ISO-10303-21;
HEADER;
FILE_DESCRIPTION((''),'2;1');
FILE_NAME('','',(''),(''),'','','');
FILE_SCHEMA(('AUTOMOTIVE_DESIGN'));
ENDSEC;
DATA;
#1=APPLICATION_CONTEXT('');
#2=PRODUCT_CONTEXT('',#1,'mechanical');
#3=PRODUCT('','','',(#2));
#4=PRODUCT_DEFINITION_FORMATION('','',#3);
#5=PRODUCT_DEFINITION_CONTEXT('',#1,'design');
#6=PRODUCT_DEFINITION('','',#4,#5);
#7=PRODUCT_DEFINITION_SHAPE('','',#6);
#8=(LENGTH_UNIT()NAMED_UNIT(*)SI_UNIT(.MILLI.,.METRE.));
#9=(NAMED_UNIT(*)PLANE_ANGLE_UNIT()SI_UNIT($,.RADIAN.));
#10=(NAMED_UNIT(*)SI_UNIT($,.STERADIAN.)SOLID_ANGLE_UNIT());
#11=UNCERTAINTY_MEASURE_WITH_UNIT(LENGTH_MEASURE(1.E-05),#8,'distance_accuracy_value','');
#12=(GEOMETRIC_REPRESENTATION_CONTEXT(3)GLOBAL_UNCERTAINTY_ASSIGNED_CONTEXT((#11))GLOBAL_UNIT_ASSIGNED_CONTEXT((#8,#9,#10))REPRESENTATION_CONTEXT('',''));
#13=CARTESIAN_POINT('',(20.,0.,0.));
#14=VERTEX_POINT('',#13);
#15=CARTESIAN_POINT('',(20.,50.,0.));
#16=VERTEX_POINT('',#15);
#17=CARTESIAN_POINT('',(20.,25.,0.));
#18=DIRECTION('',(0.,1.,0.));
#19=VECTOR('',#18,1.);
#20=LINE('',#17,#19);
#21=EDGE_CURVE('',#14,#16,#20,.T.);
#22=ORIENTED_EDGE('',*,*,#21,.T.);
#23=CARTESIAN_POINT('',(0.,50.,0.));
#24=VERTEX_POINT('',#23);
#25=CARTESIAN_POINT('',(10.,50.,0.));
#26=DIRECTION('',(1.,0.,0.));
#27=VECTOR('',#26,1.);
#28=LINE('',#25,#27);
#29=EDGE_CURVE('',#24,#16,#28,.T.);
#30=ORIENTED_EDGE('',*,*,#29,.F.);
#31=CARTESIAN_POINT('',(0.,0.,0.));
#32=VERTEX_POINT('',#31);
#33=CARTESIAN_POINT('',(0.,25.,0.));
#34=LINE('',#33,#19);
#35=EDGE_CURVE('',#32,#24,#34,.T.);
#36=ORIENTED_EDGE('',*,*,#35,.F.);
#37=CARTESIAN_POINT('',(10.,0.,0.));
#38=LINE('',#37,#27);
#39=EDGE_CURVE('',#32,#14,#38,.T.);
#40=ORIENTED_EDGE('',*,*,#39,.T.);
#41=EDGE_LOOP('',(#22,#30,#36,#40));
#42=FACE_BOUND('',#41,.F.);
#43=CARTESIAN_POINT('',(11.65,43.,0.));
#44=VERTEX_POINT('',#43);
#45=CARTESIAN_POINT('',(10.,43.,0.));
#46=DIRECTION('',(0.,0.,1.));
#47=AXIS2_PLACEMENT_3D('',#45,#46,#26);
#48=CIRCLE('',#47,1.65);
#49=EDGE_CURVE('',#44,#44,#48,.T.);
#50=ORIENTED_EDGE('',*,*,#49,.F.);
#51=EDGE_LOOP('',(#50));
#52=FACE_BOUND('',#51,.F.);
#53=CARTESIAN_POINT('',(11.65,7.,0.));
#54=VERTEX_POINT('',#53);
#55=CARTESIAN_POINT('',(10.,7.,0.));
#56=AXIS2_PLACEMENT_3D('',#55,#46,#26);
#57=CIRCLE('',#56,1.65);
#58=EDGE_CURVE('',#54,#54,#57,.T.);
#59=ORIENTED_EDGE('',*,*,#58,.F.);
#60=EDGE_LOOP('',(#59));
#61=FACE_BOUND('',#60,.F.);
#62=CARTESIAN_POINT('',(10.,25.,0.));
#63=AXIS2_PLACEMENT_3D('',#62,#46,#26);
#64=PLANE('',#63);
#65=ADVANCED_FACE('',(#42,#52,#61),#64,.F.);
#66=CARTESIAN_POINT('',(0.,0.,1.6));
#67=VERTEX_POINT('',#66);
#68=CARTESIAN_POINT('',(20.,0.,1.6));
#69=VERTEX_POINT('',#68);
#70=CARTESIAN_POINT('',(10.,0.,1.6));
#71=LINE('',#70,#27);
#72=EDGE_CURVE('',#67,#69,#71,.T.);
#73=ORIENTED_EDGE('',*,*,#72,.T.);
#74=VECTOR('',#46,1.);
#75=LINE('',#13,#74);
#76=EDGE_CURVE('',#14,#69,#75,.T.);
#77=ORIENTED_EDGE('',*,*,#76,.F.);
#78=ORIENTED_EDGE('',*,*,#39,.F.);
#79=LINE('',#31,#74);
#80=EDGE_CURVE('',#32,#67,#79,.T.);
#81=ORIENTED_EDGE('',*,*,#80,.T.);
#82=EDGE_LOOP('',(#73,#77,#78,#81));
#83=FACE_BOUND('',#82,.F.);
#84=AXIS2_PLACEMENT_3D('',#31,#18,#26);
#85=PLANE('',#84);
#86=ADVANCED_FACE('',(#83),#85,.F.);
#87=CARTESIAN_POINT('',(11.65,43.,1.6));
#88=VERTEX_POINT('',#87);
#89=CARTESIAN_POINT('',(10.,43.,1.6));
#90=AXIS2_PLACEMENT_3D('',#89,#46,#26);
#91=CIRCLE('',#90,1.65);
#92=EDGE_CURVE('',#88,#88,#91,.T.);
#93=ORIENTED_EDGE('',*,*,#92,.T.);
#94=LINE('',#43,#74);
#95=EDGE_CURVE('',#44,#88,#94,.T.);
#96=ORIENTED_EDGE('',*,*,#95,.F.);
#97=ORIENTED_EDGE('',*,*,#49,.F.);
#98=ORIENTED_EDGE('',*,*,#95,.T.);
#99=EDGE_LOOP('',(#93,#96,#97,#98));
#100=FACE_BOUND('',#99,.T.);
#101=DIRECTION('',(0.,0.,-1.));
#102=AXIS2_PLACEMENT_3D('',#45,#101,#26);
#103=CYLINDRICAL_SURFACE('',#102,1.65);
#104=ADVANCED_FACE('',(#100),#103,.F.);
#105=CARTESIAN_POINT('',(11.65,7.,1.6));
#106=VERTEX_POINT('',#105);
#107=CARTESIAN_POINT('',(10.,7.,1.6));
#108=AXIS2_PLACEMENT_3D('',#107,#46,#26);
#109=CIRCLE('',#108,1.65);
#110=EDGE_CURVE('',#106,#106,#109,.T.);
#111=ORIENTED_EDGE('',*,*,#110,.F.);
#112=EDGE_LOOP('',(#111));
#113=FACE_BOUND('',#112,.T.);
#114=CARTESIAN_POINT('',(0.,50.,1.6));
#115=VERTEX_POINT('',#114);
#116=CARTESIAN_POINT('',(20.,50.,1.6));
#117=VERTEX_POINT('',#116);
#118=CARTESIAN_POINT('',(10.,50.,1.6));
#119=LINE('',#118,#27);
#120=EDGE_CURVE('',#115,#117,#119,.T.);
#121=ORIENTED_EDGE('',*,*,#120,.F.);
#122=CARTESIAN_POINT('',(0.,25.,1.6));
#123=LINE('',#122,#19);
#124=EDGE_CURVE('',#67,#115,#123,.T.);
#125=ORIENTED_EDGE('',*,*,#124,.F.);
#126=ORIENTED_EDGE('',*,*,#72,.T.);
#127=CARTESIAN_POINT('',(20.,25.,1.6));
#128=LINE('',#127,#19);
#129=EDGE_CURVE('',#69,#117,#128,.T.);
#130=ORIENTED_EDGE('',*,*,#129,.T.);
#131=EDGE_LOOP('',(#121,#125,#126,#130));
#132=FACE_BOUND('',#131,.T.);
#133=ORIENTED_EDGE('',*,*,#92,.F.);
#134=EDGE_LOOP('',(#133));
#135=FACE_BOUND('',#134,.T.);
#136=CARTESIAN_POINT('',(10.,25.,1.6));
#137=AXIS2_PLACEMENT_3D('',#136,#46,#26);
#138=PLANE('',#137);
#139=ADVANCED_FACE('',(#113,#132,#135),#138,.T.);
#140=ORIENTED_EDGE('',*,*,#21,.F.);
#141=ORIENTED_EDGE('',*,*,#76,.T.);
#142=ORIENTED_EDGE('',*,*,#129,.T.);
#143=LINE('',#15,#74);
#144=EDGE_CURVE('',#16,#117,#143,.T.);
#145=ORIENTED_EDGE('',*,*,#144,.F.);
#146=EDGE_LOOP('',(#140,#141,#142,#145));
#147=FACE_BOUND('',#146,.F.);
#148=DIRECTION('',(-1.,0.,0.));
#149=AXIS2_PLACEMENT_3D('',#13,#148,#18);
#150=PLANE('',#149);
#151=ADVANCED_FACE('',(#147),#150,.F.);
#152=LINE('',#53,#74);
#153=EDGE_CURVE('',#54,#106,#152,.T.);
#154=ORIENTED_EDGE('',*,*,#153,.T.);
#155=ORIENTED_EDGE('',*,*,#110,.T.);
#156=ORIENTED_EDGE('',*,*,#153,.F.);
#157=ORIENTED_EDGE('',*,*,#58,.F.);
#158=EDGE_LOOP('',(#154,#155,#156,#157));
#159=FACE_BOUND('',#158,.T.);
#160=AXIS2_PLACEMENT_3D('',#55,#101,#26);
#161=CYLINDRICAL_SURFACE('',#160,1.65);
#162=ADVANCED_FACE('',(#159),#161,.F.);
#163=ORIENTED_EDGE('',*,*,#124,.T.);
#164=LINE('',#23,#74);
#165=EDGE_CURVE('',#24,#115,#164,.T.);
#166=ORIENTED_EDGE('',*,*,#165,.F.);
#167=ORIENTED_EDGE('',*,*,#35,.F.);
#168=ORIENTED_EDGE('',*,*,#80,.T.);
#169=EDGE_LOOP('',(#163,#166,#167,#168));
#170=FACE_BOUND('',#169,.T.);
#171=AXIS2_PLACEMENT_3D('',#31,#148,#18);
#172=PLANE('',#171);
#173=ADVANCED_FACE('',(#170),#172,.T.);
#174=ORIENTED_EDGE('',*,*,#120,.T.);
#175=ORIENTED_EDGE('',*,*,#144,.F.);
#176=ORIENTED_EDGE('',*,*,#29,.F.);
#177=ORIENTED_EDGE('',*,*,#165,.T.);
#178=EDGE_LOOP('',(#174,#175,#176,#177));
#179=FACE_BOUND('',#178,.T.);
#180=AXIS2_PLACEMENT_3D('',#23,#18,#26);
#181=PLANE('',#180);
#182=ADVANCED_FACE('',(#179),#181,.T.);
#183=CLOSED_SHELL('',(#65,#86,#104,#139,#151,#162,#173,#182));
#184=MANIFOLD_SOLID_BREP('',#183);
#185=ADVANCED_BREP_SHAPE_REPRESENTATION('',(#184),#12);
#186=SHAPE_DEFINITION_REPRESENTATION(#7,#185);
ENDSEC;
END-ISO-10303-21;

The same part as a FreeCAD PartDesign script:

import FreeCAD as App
import Part
import Sketcher
Q = App.Units.Quantity


def add_polygon(sketch, points):
    """Adds a closed chain of lines whose ends are joined by coincident constraints."""
    first, n = sketch.GeometryCount, len(points)
    for a, b in zip(points, points[1:] + points[:1]):
        sketch.addGeometry(Part.LineSegment(App.Vector(*a, 0), App.Vector(*b, 0)), False)
    for i in range(n):
        sketch.addConstraint(Sketcher.Constraint("Coincident", first + i, 2, first + (i + 1) % n, 1))

doc = App.newDocument("Part")
body = doc.addObject("PartDesign::Body", "Body")

sketch1 = body.newObject("Sketcher::SketchObject", "Sketch")
sketch1.AttachmentSupport = (doc.getObject("XY_Plane"), [""])
sketch1.MapMode = "FlatFace"
add_polygon(sketch1, [(0, 50), (0, 0), (20, 0), (20, 50)])
sketch1.addGeometry(Part.Circle(App.Vector(10, 7, 0), App.Vector(0, 0, 1), 1.65), False)
sketch1.addGeometry(Part.Circle(App.Vector(10, 43, 0), App.Vector(0, 0, 1), 1.65), False)
sketch1.addConstraint([
    Sketcher.Constraint("Vertical", 0),
    Sketcher.Constraint("Horizontal", 1),
    Sketcher.Constraint("Vertical", 2),
    Sketcher.Constraint("Horizontal", 3),
    Sketcher.Constraint("Coincident", 0, 2, -1, 1),
    Sketcher.Constraint("Equal", 4, 5),
    Sketcher.Constraint("Vertical", 4, 3, 5, 3),
    Sketcher.Constraint("Diameter", 4, Q("3.3 mm")),
    Sketcher.Constraint("DistanceX", 1, 1, 1, 2, Q("20 mm")),
    Sketcher.Constraint("DistanceY", 0, 2, 0, 1, Q("50 mm")),
    Sketcher.Constraint("DistanceX", -1, 1, 4, 3, Q("10 mm")),
    Sketcher.Constraint("DistanceY", -1, 1, 4, 3, Q("7 mm")),
    Sketcher.Constraint("DistanceY", -1, 1, 5, 3, Q("43 mm")),
])
pad1 = body.newObject("PartDesign::Pad", "Pad")
pad1.Profile = sketch1
pad1.Length = 1.6

doc.recompute()
